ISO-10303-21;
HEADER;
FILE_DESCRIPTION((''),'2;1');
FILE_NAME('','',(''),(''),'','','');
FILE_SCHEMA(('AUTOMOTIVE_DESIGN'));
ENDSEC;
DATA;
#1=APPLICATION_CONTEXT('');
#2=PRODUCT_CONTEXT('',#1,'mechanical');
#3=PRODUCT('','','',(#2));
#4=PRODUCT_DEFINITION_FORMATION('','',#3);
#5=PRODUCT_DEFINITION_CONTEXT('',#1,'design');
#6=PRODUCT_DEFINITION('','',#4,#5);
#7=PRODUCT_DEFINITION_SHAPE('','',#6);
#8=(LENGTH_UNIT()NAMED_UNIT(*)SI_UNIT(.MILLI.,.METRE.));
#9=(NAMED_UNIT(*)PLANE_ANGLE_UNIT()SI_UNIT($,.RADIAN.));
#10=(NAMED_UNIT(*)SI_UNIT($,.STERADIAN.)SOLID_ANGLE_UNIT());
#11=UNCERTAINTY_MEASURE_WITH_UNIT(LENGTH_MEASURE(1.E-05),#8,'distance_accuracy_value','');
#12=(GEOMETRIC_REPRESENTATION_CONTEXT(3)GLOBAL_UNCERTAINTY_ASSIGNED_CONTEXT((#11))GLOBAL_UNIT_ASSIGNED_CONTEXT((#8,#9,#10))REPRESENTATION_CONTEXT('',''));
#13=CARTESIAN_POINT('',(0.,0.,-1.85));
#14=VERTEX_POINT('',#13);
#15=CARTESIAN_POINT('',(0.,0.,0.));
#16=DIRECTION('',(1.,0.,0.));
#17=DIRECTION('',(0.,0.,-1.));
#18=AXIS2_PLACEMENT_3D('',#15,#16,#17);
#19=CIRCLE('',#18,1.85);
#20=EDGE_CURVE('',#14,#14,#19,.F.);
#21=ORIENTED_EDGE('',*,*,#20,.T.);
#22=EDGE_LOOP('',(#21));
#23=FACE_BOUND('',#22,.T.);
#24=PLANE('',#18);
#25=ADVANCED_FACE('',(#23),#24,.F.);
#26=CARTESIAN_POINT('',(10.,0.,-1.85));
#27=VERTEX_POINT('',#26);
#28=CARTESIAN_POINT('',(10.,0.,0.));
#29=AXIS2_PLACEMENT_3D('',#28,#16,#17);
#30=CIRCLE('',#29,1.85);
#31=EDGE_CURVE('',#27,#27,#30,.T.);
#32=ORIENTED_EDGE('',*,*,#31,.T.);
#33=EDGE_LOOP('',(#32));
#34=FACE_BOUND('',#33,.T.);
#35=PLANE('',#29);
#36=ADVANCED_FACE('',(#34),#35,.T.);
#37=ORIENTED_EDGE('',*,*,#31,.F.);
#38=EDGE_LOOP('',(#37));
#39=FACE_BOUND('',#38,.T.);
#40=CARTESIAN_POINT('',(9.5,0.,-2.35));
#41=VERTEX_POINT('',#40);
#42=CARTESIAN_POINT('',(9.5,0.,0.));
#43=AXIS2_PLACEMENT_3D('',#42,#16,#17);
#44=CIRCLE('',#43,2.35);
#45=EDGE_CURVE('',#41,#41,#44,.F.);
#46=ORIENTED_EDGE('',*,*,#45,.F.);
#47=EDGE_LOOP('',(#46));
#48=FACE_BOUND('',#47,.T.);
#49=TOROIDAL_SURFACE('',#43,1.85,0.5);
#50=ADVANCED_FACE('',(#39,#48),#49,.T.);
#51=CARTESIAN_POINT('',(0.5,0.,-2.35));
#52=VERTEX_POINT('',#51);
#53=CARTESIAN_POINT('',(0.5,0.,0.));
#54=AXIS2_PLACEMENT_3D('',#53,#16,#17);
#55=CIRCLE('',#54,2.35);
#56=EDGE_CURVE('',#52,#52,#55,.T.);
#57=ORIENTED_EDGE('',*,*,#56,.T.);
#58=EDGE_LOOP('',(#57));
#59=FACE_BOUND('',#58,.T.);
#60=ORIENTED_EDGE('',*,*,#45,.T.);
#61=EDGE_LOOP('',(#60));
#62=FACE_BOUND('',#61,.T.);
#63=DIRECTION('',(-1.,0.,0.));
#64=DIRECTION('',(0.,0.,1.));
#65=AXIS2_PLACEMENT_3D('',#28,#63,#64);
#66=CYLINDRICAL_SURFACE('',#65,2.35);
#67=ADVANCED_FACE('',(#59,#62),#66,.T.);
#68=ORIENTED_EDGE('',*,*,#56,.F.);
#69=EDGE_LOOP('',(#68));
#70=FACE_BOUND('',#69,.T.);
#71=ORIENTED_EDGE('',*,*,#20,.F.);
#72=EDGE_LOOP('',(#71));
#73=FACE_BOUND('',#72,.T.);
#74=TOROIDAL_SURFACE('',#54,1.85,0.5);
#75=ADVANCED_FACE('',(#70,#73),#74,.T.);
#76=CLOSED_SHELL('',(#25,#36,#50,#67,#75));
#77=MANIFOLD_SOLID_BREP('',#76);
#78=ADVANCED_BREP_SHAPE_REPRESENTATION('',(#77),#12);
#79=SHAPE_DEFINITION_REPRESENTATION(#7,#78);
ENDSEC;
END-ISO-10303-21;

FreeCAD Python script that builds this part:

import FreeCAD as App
import Part
import Sketcher
from FreeCAD import Vector
Q = App.Units.Quantity


def edges_at(feature, points):
    """Names of the edges that pass closest to the given points."""
    edges = feature.Shape.Edges
    near = lambda p: min(range(len(edges)), key=lambda i: edges[i].distToShape(Part.Vertex(*p))[0])
    return sorted({f"Edge{near(p) + 1}" for p in points})

doc = App.newDocument("Part")
body = doc.addObject("PartDesign::Body", "Body")

# Sketch on YZ plane
sketch1 = doc.addObject("Sketcher::SketchObject", "Sketch")
body.addObject(sketch1)
sketch1.AttachmentSupport = (doc.YZ_Plane, [""])
sketch1.MapMode = "FlatFace"
sketch1.addGeometry(Part.Circle(Vector(0, 0, 0), Vector(0, 0, 1), 2.4), False)
sketch1.addConstraint([
    Sketcher.Constraint("Coincident", 0, 3, -1, 1),
    Sketcher.Constraint("Diameter", 0, Q("4.7 mm")),
])
pad1 = doc.addObject("PartDesign::Pad", "Pad")
body.addObject(pad1)
pad1.Profile = sketch1
pad1.Length = 10
doc.recompute()

fillet = doc.addObject("PartDesign::Fillet", "Fillet")
body.addObject(fillet)
fillet.Base = (pad1, edges_at(pad1, [(0, 0, 2.35), (10, 0, 2.35)]))
fillet.Radius = 0.5

doc.recompute()
